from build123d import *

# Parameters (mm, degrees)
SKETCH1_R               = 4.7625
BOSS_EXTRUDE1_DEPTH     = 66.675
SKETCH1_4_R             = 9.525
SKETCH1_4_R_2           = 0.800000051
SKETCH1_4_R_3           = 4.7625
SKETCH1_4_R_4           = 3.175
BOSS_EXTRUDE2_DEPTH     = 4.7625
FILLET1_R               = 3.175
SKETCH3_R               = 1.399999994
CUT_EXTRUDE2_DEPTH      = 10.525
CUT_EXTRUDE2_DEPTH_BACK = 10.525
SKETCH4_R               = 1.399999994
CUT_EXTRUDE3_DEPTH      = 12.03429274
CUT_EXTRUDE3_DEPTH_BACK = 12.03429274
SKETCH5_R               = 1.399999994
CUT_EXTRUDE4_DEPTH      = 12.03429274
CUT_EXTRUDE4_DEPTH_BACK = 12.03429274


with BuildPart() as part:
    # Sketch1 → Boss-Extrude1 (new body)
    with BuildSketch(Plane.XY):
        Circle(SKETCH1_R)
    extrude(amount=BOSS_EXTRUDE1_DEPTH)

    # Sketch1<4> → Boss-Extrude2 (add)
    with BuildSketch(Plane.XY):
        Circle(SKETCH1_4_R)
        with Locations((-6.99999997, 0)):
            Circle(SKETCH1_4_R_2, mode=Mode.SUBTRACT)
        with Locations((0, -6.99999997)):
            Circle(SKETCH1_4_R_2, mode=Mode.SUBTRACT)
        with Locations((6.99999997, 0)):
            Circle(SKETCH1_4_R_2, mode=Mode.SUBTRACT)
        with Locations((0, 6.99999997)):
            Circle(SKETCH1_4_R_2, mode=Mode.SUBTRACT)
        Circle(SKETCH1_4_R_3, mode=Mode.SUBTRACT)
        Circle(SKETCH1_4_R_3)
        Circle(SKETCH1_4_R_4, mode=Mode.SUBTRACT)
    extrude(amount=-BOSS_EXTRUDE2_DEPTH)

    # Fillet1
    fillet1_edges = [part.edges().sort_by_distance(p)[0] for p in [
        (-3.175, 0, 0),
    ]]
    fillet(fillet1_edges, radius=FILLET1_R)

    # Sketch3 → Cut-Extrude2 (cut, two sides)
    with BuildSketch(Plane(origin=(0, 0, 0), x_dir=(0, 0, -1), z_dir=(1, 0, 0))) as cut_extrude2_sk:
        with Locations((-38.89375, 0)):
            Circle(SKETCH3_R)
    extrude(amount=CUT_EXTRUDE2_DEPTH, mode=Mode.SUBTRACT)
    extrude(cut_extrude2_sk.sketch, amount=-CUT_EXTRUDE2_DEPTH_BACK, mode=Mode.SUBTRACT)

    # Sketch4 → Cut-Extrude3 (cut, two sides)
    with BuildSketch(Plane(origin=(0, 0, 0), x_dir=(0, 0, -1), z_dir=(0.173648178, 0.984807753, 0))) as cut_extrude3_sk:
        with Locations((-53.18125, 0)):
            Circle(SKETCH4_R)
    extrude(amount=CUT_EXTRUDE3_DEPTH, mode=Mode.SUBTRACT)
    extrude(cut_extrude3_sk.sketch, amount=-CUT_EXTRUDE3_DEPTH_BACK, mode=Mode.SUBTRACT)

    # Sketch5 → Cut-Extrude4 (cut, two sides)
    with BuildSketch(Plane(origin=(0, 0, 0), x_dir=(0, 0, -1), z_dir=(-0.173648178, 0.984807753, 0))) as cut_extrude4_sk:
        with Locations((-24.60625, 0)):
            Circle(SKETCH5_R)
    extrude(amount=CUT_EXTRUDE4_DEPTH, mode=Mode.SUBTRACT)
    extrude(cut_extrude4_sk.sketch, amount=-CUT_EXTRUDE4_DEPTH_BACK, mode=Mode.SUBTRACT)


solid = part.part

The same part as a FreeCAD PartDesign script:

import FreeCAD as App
import Part
import Sketcher

V = App.Vector
Q = App.Units.Quantity


def edges_at(feature, points):
    """Names of the edges that pass closest to the given points."""
    edges = feature.Shape.Edges
    near = lambda p: min(range(len(edges)), key=lambda i: edges[i].distToShape(Part.Vertex(*p))[0])
    return sorted({f"Edge{near(p) + 1}" for p in points})

doc = App.newDocument("Part")
body = doc.addObject("PartDesign::Body", "Body")

# Sketch on XY plane
sketch1 = body.newObject("Sketcher::SketchObject", "Sketch")
sketch1.AttachmentSupport = (doc.getObject("XY_Plane"), [""])
sketch1.MapMode = "FlatFace"
sketch1.addGeometry(Part.Circle(V(0, 0, 0), V(0, 0, 1), 4.8), False)
sketch1.addConstraint(Sketcher.Constraint("Coincident", 0, 3, -1, 1))
sketch1.addConstraint(Sketcher.Constraint("Diameter", 0, Q("0.375 in")))
pad1 = body.newObject("PartDesign::Pad", "Pad")
pad1.Profile = sketch1
pad1.Length = Q("2.625 in")

# Sketch on XY plane
sketch2 = body.newObject("Sketcher::SketchObject", "Sketch001")
sketch2.AttachmentSupport = (doc.getObject("XY_Plane"), [""])
sketch2.MapMode = "FlatFace"
sketch2.addGeometry(Part.Circle(V(0, 0, 0), V(0, 0, 1), 9.5), False)
sketch2.addGeometry(Part.Circle(V(0, -7, 0), V(0, 0, 1), 0.8), False)
sketch2.addGeometry(Part.Circle(V(-7, 0, 0), V(0, 0, 1), 0.8), False)
sketch2.addGeometry(Part.Circle(V(0, 0, 0), V(0, 0, 1), 3.2), False)
sketch2.addGeometry(Part.Circle(V(7, 0, 0), V(0, 0, 1), 0.8), False)
sketch2.addGeometry(Part.Circle(V(0, 7, 0), V(0, 0, 1), 0.8), False)
sketch2.addConstraint(Sketcher.Constraint("Coincident", 0, 3, -1, 1))
sketch2.addConstraint(Sketcher.Constraint("Coincident", 3, 3, -1, 1))
sketch2.addConstraint(Sketcher.Constraint("Equal", 1, 2))
sketch2.addConstraint(Sketcher.Constraint("Equal", 2, 4))
sketch2.addConstraint(Sketcher.Constraint("Equal", 4, 5))
sketch2.addConstraint(Sketcher.Constraint("Symmetric", 2, 3, 4, 3, -1, 1))
sketch2.addConstraint(Sketcher.Constraint("Symmetric", 1, 3, 5, 3, -1, 1))
sketch2.addConstraint(Sketcher.Constraint("PointOnObject", 1, 3, -2))
sketch2.addConstraint(Sketcher.Constraint("PointOnObject", 2, 3, -1))
sketch2.addConstraint(Sketcher.Constraint("Diameter", 0, Q("0.75 in")))
sketch2.addConstraint(Sketcher.Constraint("Diameter", 3, Q("0.25 in")))
sketch2.addConstraint(Sketcher.Constraint("Diameter", 1, 1.6))
sketch2.addConstraint(Sketcher.Constraint("DistanceY", 1, 3, -1, 1, 7.0))
sketch2.addConstraint(Sketcher.Constraint("DistanceX", 2, 3, -1, 1, 7.0))
pad2 = body.newObject("PartDesign::Pad", "Pad001")
pad2.Profile = sketch2
pad2.Length = Q("0.1875 in")
pad2.Reversed = True
doc.recompute()

fillet = body.newObject("PartDesign::Fillet", "Fillet")
fillet.Base = (pad2, edges_at(pad2, [(-3.175, 0, 0)]))
fillet.Radius = Q("0.125 in")

# Sketch on YZ plane
sketch3 = body.newObject("Sketcher::SketchObject", "Sketch002")
sketch3.AttachmentSupport = (doc.getObject("YZ_Plane"), [""])
sketch3.MapMode = "FlatFace"
sketch3.addGeometry(Part.Circle(V(0, 38.9, 0), V(0, 0, 1), 1.4), False)
sketch3.addConstraint(Sketcher.Constraint("PointOnObject", 0, 3, -2))
sketch3.addConstraint(Sketcher.Constraint("Diameter", 0, 2.8))
sketch3.addConstraint(Sketcher.Constraint("DistanceY", -1, 1, 0, 3, Q("1.53125 in")))
pocket1 = body.newObject("PartDesign::Pocket", "Pocket")
pocket1.Profile = sketch3
pocket1.Type = "ThroughAll"
pocket1.Midplane = True

# Sketch on an angled plane
sketch4 = body.newObject("Sketcher::SketchObject", "Sketch003")
sketch4.Placement = App.Placement(V(0, 0, 0), App.Rotation(V(0, 0, -1), V(-0.984807753, 0.173648178, 0), V(0.173648178, 0.984807753, 0), "ZXY"))
sketch4.addGeometry(Part.Circle(V(-53.2, 0, 0), V(0, 0, 1), 1.4), False)
sketch4.addConstraint(Sketcher.Constraint("PointOnObject", 0, 3, -1))
sketch4.addConstraint(Sketcher.Constraint("Diameter", 0, 2.8))
sketch4.addConstraint(Sketcher.Constraint("DistanceX", 0, 3, -1, 1, Q("2.09375 in")))
pocket2 = body.newObject("PartDesign::Pocket", "Pocket001")
pocket2.Profile = sketch4
pocket2.Type = "ThroughAll"
pocket2.Midplane = True

# Sketch on an angled plane
sketch5 = body.newObject("Sketcher::SketchObject", "Sketch004")
sketch5.Placement = App.Placement(V(0, 0, 0), App.Rotation(V(0, 0, -1), V(-0.984807753, -0.173648178, 0), V(-0.173648178, 0.984807753, 0), "ZXY"))
sketch5.addGeometry(Part.Circle(V(-24.6, 0, 0), V(0, 0, 1), 1.4), False)
sketch5.addConstraint(Sketcher.Constraint("PointOnObject", 0, 3, -1))
sketch5.addConstraint(Sketcher.Constraint("Diameter", 0, 2.8))
sketch5.addConstraint(Sketcher.Constraint("DistanceX", 0, 3, -1, 1, Q("0.96875 in")))
pocket3 = body.newObject("PartDesign::Pocket", "Pocket002")
pocket3.Profile = sketch5
pocket3.Type = "ThroughAll"
pocket3.Midplane = True

doc.recompute()
